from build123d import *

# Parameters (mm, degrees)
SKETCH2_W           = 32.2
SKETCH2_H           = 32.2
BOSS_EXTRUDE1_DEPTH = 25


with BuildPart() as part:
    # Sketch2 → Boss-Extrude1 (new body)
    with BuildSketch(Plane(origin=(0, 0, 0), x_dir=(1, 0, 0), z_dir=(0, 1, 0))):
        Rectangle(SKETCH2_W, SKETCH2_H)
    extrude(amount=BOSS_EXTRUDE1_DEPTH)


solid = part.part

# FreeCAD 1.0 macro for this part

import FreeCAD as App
import Part
import Sketcher


def add_polygon(sketch, points):
    """Adds a closed chain of lines whose ends are joined by coincident constraints."""
    first, n = sketch.GeometryCount, len(points)
    for a, b in zip(points, points[1:] + points[:1]):
        sketch.addGeometry(Part.LineSegment(App.Vector(*a, 0), App.Vector(*b, 0)), False)
    for i in range(n):
        sketch.addConstraint(Sketcher.Constraint("Coincident", first + i, 2, first + (i + 1) % n, 1))

doc = App.newDocument("Part")
params = doc.addObject("Spreadsheet::Sheet", "Params")
for row, (alias, value) in enumerate([
    ("sketch1_width", "32.2 mm"),
    ("pad1_length", "25 mm"),
], start=1):
    params.set(f"A{row}", alias)
    params.set(f"B{row}", "=" + value)
    params.setAlias(f"B{row}", alias)

body = doc.addObject("PartDesign::Body", "Body")

# Sketch on XZ plane
sketch1 = body.newObject("Sketcher::SketchObject", "Sketch")
sketch1.AttachmentSupport = (doc.getObject("XZ_Plane"), [""])
sketch1.MapMode = "FlatFace"
add_polygon(sketch1, [(-16, -16), (-16, 16), (16, 16), (16, -16)])  # lines 0-3
sketch1.addConstraint([
    Sketcher.Constraint("Vertical", 0),
    Sketcher.Constraint("Horizontal", 1),
    Sketcher.Constraint("Vertical", 2),
    Sketcher.Constraint("Horizontal", 3),
    Sketcher.Constraint("Symmetric", 0, 2, 2, 2, -1, 1),
    Sketcher.Constraint("Equal", 3, 0),
    Sketcher.Constraint("DistanceX", 1, 1, 1, 2, 32.2),
])
sketch1.setExpression("Constraints[10]", "Params.sketch1_width")
pad1 = body.newObject("PartDesign::Pad", "Pad")
pad1.Profile = sketch1
pad1.setExpression("Length", "Params.pad1_length")
pad1.Reversed = True

doc.recompute()
